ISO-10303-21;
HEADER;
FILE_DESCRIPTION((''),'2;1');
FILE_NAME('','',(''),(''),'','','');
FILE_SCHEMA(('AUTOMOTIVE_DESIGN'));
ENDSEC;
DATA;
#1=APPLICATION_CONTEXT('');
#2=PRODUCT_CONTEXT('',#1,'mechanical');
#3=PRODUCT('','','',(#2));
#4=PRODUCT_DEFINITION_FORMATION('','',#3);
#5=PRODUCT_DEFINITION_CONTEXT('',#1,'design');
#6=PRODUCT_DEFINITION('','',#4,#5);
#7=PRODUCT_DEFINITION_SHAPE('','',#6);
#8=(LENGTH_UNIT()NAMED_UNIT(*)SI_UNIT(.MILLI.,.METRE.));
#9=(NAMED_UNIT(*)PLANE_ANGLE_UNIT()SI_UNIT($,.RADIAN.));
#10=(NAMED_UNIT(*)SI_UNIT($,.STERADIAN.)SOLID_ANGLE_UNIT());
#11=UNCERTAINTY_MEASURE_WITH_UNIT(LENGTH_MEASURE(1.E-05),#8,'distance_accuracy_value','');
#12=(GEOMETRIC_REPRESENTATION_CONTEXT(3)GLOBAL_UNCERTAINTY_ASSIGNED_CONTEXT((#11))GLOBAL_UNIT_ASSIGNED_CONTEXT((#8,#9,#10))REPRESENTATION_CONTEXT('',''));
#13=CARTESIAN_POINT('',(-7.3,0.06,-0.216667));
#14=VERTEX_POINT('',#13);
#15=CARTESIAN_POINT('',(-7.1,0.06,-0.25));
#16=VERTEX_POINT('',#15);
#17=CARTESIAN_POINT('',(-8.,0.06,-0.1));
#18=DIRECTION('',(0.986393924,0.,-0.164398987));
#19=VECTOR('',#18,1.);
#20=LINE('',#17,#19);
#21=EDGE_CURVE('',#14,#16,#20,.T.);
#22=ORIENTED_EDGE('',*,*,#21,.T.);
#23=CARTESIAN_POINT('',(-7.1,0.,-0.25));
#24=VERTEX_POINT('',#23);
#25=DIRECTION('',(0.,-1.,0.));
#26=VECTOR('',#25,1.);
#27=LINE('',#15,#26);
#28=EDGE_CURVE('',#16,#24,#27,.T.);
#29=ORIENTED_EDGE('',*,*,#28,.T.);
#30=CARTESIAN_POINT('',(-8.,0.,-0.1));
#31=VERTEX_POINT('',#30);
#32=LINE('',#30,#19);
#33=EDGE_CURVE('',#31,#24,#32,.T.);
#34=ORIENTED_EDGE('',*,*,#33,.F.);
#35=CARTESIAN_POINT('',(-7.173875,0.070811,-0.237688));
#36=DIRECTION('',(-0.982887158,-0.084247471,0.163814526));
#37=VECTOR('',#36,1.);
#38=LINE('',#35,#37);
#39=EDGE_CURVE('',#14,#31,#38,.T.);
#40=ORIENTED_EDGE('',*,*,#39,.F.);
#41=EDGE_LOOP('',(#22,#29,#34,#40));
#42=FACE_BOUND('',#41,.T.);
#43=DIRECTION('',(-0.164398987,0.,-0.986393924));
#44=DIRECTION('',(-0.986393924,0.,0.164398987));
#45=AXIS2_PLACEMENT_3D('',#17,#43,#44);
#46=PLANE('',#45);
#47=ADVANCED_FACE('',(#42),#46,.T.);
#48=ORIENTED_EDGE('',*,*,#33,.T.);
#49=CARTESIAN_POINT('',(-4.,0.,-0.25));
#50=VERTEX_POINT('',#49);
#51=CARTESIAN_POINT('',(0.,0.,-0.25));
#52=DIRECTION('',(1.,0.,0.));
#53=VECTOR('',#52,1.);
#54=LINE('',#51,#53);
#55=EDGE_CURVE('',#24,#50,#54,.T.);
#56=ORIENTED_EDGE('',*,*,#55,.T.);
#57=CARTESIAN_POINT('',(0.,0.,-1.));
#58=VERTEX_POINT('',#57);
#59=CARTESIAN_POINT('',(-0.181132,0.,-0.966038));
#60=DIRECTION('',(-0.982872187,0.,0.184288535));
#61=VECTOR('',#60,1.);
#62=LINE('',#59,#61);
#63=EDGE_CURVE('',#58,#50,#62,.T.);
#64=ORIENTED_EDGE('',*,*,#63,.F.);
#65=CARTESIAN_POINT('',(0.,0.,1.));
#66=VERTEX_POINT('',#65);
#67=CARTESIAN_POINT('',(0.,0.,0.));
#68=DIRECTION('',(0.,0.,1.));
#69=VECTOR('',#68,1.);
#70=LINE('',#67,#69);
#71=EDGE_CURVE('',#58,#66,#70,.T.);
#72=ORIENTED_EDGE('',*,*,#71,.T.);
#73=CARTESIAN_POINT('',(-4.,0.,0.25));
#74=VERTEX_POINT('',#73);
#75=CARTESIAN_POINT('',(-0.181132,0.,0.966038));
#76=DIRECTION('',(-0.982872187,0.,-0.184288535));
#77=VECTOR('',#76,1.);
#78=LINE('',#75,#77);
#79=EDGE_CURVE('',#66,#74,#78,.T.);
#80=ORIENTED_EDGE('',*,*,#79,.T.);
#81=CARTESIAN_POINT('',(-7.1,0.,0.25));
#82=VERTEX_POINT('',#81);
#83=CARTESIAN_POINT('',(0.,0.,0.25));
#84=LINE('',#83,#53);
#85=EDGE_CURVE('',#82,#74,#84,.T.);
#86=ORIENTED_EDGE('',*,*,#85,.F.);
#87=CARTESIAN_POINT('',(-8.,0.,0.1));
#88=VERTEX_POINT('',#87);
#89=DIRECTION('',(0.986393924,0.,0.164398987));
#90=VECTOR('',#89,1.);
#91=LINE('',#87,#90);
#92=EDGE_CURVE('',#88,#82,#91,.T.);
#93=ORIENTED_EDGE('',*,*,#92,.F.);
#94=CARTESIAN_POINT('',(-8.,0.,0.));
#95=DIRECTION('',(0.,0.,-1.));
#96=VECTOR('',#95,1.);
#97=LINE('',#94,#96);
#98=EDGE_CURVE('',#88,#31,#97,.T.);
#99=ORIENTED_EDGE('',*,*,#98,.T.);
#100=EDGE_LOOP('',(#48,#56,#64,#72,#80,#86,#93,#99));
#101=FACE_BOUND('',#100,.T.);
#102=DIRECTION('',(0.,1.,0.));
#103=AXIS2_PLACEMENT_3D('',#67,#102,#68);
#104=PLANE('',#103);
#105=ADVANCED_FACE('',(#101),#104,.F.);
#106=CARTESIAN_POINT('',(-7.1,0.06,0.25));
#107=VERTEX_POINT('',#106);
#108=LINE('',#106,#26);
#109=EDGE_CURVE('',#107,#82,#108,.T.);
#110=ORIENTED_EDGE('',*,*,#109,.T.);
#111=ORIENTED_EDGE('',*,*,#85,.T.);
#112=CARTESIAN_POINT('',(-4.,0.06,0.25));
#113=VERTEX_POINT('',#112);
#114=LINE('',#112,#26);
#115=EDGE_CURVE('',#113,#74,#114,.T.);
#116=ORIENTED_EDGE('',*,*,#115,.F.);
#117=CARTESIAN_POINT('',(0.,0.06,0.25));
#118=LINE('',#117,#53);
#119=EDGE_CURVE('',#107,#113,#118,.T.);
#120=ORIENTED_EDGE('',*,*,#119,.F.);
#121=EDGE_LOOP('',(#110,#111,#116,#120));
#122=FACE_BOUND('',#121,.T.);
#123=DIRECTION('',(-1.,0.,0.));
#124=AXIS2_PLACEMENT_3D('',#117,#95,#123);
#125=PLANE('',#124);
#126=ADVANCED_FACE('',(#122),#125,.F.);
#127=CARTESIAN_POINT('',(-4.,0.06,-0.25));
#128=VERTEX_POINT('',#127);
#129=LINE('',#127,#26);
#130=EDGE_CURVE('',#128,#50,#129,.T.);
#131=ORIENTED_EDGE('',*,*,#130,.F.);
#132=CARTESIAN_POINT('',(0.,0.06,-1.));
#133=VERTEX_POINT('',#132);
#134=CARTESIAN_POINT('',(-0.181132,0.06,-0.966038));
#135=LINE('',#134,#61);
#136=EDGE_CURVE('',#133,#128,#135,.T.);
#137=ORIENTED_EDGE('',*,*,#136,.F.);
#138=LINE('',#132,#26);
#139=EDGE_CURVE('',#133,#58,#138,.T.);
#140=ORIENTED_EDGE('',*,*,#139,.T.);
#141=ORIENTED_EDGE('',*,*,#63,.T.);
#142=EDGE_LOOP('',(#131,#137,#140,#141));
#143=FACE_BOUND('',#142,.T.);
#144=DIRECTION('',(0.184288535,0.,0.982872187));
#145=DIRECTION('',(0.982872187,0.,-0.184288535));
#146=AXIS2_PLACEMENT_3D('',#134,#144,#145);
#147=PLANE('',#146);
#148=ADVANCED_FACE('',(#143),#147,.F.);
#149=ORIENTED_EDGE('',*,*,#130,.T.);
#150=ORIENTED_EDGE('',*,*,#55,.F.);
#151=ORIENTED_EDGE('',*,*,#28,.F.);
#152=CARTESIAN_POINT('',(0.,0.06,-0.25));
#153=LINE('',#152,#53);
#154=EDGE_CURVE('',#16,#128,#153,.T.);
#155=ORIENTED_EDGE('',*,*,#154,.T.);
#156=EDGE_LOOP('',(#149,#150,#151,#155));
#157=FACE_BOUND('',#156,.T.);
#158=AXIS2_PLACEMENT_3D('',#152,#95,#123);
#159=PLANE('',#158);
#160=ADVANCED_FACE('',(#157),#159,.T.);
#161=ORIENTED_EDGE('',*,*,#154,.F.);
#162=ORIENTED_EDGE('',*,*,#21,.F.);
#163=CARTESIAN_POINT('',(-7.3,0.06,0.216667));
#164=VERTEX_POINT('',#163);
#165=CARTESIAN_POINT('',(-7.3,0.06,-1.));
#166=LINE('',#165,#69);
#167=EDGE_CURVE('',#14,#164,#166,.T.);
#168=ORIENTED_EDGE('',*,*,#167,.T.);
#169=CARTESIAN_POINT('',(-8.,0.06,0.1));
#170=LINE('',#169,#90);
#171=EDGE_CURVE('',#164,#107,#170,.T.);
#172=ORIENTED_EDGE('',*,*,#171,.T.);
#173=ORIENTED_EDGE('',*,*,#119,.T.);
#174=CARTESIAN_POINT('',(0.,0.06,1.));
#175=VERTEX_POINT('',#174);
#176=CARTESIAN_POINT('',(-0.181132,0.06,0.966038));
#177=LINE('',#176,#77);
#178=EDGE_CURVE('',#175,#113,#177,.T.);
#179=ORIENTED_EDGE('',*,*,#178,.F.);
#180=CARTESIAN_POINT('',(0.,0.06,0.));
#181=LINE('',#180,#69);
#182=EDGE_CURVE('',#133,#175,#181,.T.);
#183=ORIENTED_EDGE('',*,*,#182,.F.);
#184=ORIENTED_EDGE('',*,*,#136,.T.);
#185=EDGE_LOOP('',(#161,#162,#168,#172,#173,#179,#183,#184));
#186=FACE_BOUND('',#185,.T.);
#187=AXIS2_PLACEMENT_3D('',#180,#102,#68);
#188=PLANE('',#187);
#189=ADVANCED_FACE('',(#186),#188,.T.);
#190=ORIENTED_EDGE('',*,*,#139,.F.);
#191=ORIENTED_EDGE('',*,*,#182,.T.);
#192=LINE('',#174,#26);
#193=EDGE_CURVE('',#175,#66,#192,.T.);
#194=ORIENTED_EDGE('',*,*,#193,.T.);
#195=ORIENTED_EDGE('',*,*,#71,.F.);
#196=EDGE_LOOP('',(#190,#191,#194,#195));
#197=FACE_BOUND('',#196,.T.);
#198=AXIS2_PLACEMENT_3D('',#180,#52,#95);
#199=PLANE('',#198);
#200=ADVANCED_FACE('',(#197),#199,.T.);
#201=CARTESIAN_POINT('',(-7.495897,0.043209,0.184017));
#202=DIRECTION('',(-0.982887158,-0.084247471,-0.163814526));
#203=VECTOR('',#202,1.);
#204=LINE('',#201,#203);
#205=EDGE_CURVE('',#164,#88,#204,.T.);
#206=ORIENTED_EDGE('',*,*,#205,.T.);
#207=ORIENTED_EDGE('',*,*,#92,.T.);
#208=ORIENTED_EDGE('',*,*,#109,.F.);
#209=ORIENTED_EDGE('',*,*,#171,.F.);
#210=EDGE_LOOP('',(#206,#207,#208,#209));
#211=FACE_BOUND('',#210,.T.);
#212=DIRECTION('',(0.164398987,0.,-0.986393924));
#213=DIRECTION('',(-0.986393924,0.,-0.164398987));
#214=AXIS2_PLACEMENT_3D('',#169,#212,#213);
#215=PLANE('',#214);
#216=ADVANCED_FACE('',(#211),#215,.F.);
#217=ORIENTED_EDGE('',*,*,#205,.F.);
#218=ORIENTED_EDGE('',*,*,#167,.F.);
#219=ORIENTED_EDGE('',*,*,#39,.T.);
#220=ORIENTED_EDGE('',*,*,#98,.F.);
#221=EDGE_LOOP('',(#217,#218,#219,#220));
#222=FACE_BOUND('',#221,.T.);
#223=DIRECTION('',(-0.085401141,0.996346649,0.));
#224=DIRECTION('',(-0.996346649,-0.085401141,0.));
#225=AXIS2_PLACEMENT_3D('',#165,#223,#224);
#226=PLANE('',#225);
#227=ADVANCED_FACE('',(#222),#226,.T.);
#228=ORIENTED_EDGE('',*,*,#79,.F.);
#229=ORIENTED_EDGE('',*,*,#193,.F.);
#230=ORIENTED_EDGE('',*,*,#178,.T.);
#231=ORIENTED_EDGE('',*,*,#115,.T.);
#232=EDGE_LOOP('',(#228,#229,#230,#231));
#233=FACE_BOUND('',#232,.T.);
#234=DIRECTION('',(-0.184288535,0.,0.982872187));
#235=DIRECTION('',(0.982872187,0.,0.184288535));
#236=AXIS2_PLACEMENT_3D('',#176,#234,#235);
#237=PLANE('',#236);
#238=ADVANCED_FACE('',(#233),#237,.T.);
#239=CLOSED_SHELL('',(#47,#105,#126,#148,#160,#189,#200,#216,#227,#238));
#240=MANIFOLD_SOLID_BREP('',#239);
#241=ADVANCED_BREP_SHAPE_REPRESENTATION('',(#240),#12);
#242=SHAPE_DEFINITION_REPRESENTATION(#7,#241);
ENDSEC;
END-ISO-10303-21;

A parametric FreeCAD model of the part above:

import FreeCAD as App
import Part
import Sketcher
from FreeCAD import Vector
Q = App.Units.Quantity

doc = App.newDocument("Part")
body = doc.addObject("PartDesign::Body", "Body")

sketch1 = doc.addObject("Sketcher::SketchObject", "Sketch")
body.addObject(sketch1)
sketch1.AttachmentSupport = (doc.XZ_Plane, [""])
sketch1.MapMode = "FlatFace"
sketch1.addGeometry(Part.LineSegment(Vector(0, -1, 0), Vector(-0.36, -0.93, 0)), False)
sketch1.addGeometry(Part.LineSegment(Vector(-0.36, -0.93, 0), Vector(-4, -0.25, 0)), False)
sketch1.addGeometry(Part.LineSegment(Vector(-4, -0.25, 0), Vector(-8, -0.25, 0)), False)
sketch1.addGeometry(Part.LineSegment(Vector(-8, -0.25, 0), Vector(-8, 0.25, 0)), False)
sketch1.addGeometry(Part.LineSegment(Vector(-8, 0.25, 0), Vector(-4, 0.25, 0)), False)
sketch1.addGeometry(Part.LineSegment(Vector(-4, 0.25, 0), Vector(-0.36, 0.93, 0)), False)
sketch1.addGeometry(Part.LineSegment(Vector(-0.36, 0.93, 0), Vector(0, 1, 0)), False)
sketch1.addGeometry(Part.LineSegment(Vector(0, 1, 0), Vector(0, -1, 0)), False)
sketch1.addConstraint(Sketcher.Constraint("Coincident", 0, 2, 1, 1))
sketch1.addConstraint(Sketcher.Constraint("Coincident", 1, 2, 2, 1))
sketch1.addConstraint(Sketcher.Constraint("Coincident", 2, 2, 3, 1))
sketch1.addConstraint(Sketcher.Constraint("Coincident", 3, 2, 4, 1))
sketch1.addConstraint(Sketcher.Constraint("Coincident", 4, 2, 5, 1))
sketch1.addConstraint(Sketcher.Constraint("Coincident", 5, 2, 6, 1))
sketch1.addConstraint(Sketcher.Constraint("Coincident", 6, 2, 7, 1))
sketch1.addConstraint(Sketcher.Constraint("Coincident", 7, 2, 0, 1))
sketch1.addConstraint(Sketcher.Constraint("Horizontal", 2))
sketch1.addConstraint(Sketcher.Constraint("Vertical", 3))
sketch1.addConstraint(Sketcher.Constraint("Horizontal", 4))
sketch1.addConstraint(Sketcher.Constraint("Vertical", 7))
sketch1.addConstraint(Sketcher.Constraint("Symmetric", 6, 2, 7, 2, -1, 1))
sketch1.addConstraint(Sketcher.Constraint("Symmetric", 1, 2, 4, 2, -1))
sketch1.addConstraint(Sketcher.Constraint("Symmetric", 0, 2, 5, 2, -1))
sketch1.addConstraint(Sketcher.Constraint("Parallel", 0, 1))
sketch1.addConstraint(Sketcher.Constraint("DistanceX", 2, 2, 2, 1, Q("4 mm")))
sketch1.addConstraint(Sketcher.Constraint("DistanceY", 7, 2, 7, 1, Q("2 mm")))
sketch1.addConstraint(Sketcher.Constraint("DistanceY", 3, 1, 3, 2, Q("0.5 mm")))
sketch1.addConstraint(Sketcher.Constraint("DistanceX", 1, 2, -1, 1, Q("4 mm")))
sketch1.addConstraint(Sketcher.Constraint("Distance", 1, Q("3.701128 mm")))
pad1 = doc.addObject("PartDesign::Pad", "Pad")
body.addObject(pad1)
pad1.Profile = sketch1
pad1.Length = 0.06
pad1.Reversed = True

sketch2 = doc.addObject("Sketcher::SketchObject", "Sketch001")
body.addObject(sketch2)
sketch2.AttachmentSupport = (doc.XY_Plane, [""])
sketch2.MapMode = "FlatFace"
sketch2.AttachmentOffset = App.Placement(Vector(0, 0, 0.25), App.Rotation())
sketch2.addGeometry(Part.LineSegment(Vector(-8, 0.06, 0), Vector(-8, 0, 0)), False)
sketch2.addGeometry(Part.LineSegment(Vector(-8, 0, 0), Vector(-7.3, 0.06, 0)), False)
sketch2.addGeometry(Part.LineSegment(Vector(-7.3, 0.06, 0), Vector(-8, 0.06, 0)), False)
sketch2.addConstraint(Sketcher.Constraint("Coincident", 0, 2, 1, 1))
sketch2.addConstraint(Sketcher.Constraint("Coincident", 1, 2, 2, 1))
sketch2.addConstraint(Sketcher.Constraint("Coincident", 2, 2, 0, 1))
sketch2.addConstraint(Sketcher.Constraint("Vertical", 0))
sketch2.addConstraint(Sketcher.Constraint("Horizontal", 2))
sketch2.addConstraint(Sketcher.Constraint("PointOnObject", 0, 2, -1))
sketch2.addConstraint(Sketcher.Constraint("DistanceX", 2, 2, 2, 1, Q("0.7 mm")))
sketch2.addConstraint(Sketcher.Constraint("DistanceX", 0, 2, -1, 1, Q("8 mm")))
sketch2.addConstraint(Sketcher.Constraint("DistanceY", 0, 2, 0, 1, Q("0.06 mm")))
pocket1 = doc.addObject("PartDesign::Pocket", "Pocket")
body.addObject(pocket1)
pocket1.Profile = sketch2
pocket1.Type = "ThroughAll"

sketch3 = doc.addObject("Sketcher::SketchObject", "Sketch002")
body.addObject(sketch3)
sketch3.AttachmentSupport = (doc.XZ_Plane, [""])
sketch3.MapMode = "FlatFace"
sketch3.AttachmentOffset = App.Placement(Vector(0, 0, -0.06), App.Rotation())
sketch3.addGeometry(Part.LineSegment(Vector(-8, 0.1, 0), Vector(-8, 0.25, 0)), False)
sketch3.addGeometry(Part.LineSegment(Vector(-8, 0.25, 0), Vector(-7.1, 0.25, 0)), False)
sketch3.addGeometry(Part.LineSegment(Vector(-7.1, 0.25, 0), Vector(-8, 0.1, 0)), False)
sketch3.addGeometry(Part.LineSegment(Vector(-7.1, -0.25, 0), Vector(-8, -0.25, 0)), False)
sketch3.addGeometry(Part.LineSegment(Vector(-8, -0.25, 0), Vector(-8, -0.1, 0)), False)
sketch3.addGeometry(Part.LineSegment(Vector(-8, -0.1, 0), Vector(-7.1, -0.25, 0)), False)
sketch3.addConstraint(Sketcher.Constraint("Coincident", 0, 2, 1, 1))
sketch3.addConstraint(Sketcher.Constraint("Coincident", 1, 2, 2, 1))
sketch3.addConstraint(Sketcher.Constraint("Coincident", 2, 2, 0, 1))
sketch3.addConstraint(Sketcher.Constraint("Coincident", 3, 2, 4, 1))
sketch3.addConstraint(Sketcher.Constraint("Coincident", 4, 2, 5, 1))
sketch3.addConstraint(Sketcher.Constraint("Coincident", 5, 2, 3, 1))
sketch3.addConstraint(Sketcher.Constraint("Vertical", 0))
sketch3.addConstraint(Sketcher.Constraint("Horizontal", 1))
sketch3.addConstraint(Sketcher.Constraint("Horizontal", 3))
sketch3.addConstraint(Sketcher.Constraint("Vertical", 4))
sketch3.addConstraint(Sketcher.Constraint("Symmetric", 0, 2, 3, 2, -1))
sketch3.addConstraint(Sketcher.Constraint("Vertical", 1, 2, 5, 2))
sketch3.addConstraint(Sketcher.Constraint("Equal", 0, 4))
sketch3.addConstraint(Sketcher.Constraint("DistanceX", 1, 1, 1, 2, Q("0.9 mm")))
sketch3.addConstraint(Sketcher.Constraint("DistanceX", 0, 2, -1, 1, Q("8 mm")))
sketch3.addConstraint(Sketcher.Constraint("DistanceY", 0, 1, 0, 2, Q("0.15 mm")))
sketch3.addConstraint(Sketcher.Constraint("DistanceY", -1, 1, 2, 2, Q("0.1 mm")))
pocket2 = doc.addObject("PartDesign::Pocket", "Pocket001")
body.addObject(pocket2)
pocket2.Profile = sketch3
pocket2.Type = "ThroughAll"
pocket2.Reversed = True

doc.recompute()
